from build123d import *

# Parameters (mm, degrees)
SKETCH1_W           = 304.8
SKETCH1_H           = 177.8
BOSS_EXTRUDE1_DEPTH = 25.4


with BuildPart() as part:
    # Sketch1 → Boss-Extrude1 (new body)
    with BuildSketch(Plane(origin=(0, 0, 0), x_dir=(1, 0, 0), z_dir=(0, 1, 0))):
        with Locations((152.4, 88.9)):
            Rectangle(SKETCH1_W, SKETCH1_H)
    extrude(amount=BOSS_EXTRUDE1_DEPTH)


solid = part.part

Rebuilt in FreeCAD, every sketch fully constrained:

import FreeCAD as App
import Part
import Sketcher
Q = App.Units.Quantity

doc = App.newDocument("Part")
body = doc.addObject("PartDesign::Body", "Body")

# Sketch on XZ plane
sketch1 = body.newObject("Sketcher::SketchObject", "Sketch")
sketch1.AttachmentSupport = (doc.getObject("XZ_Plane"), [""])
sketch1.MapMode = "FlatFace"
sketch1.addGeometry(Part.LineSegment(App.Vector(0, -178, 0), App.Vector(0, 0, 0)), False)
sketch1.addGeometry(Part.LineSegment(App.Vector(0, 0, 0), App.Vector(305, 0, 0)), False)
sketch1.addGeometry(Part.LineSegment(App.Vector(305, 0, 0), App.Vector(305, -178, 0)), False)
sketch1.addGeometry(Part.LineSegment(App.Vector(305, -178, 0), App.Vector(0, -178, 0)), False)
sketch1.addConstraint(Sketcher.Constraint("Coincident", 0, 2, 1, 1))
sketch1.addConstraint(Sketcher.Constraint("Coincident", 1, 2, 2, 1))
sketch1.addConstraint(Sketcher.Constraint("Coincident", 2, 2, 3, 1))
sketch1.addConstraint(Sketcher.Constraint("Coincident", 3, 2, 0, 1))
sketch1.addConstraint(Sketcher.Constraint("Vertical", 0))
sketch1.addConstraint(Sketcher.Constraint("Horizontal", 1))
sketch1.addConstraint(Sketcher.Constraint("Vertical", 2))
sketch1.addConstraint(Sketcher.Constraint("Horizontal", 3))
sketch1.addConstraint(Sketcher.Constraint("Coincident", 0, 2, -1, 1))
sketch1.addConstraint(Sketcher.Constraint("DistanceX", 1, 1, 1, 2, Q("12 in")))
sketch1.addConstraint(Sketcher.Constraint("DistanceY", 0, 1, 0, 2, Q("7 in")))
pad1 = body.newObject("PartDesign::Pad", "Pad")
pad1.Profile = sketch1
pad1.Length = Q("1 in")
pad1.Reversed = True

doc.recompute()
